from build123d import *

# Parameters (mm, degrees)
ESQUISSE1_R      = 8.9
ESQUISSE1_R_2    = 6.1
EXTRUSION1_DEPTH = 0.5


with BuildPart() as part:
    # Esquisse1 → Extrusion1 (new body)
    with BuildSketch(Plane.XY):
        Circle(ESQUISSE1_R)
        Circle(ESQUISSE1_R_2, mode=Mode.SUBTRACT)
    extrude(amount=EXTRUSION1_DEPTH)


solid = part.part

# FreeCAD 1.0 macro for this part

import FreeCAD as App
import Part
import Sketcher

V = App.Vector
Q = App.Units.Quantity

doc = App.newDocument("Part")
body = doc.addObject("PartDesign::Body", "Body")

# Sketch on XY plane
sketch1 = body.newObject("Sketcher::SketchObject", "Sketch")
sketch1.AttachmentSupport = (doc.getObject("XY_Plane"), [""])
sketch1.MapMode = "FlatFace"
sketch1.addGeometry(Part.Circle(V(0, 0, 0), V(0, 0, 1), 9), False)
sketch1.addGeometry(Part.Circle(V(0, 0, 0), V(0, 0, 1), 6), False)
sketch1.addConstraint(Sketcher.Constraint("Coincident", 0, 3, -1, 1))
sketch1.addConstraint(Sketcher.Constraint("Coincident", 1, 3, -1, 1))
sketch1.addConstraint(Sketcher.Constraint("Diameter", 0, Q("17.8 mm")))
sketch1.addConstraint(Sketcher.Constraint("Diameter", 1, Q("12.2 mm")))
pad1 = body.newObject("PartDesign::Pad", "Pad")
pad1.Profile = sketch1
pad1.Length = 0.5

doc.recompute()
